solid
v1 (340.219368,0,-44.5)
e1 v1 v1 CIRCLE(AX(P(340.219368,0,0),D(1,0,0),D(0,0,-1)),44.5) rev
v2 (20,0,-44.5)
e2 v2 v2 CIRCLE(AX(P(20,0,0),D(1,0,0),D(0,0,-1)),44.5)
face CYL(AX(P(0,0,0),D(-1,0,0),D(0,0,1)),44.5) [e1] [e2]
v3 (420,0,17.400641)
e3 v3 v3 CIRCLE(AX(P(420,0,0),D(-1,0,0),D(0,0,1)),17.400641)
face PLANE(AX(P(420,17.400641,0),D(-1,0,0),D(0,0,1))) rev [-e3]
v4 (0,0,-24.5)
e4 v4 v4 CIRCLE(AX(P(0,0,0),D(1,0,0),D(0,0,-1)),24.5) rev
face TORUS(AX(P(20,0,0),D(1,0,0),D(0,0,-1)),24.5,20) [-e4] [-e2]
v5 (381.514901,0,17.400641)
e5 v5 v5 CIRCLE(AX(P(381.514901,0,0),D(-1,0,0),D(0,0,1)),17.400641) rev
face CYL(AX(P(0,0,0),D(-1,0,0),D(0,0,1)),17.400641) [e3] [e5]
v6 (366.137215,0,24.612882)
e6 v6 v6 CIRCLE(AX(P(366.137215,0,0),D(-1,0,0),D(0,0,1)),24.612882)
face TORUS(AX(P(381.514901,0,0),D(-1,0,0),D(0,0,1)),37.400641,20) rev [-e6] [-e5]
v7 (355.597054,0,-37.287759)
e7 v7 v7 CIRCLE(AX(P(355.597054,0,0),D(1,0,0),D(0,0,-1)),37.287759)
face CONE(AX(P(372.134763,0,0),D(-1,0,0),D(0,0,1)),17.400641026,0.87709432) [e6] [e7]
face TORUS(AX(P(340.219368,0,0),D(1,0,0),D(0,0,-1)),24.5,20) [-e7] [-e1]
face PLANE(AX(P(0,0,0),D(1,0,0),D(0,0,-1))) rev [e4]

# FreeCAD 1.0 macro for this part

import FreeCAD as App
import Part
import Sketcher
from FreeCAD import Vector
Q = App.Units.Quantity


def edges_at(feature, points):
    """Names of the edges that pass closest to the given points."""
    edges = feature.Shape.Edges
    near = lambda p: min(range(len(edges)), key=lambda i: edges[i].distToShape(Part.Vertex(*p))[0])
    return sorted({f"Edge{near(p) + 1}" for p in points})


def add_polygon(sketch, points):
    """Adds a closed chain of lines whose ends are joined by coincident constraints."""
    first, n = sketch.GeometryCount, len(points)
    for a, b in zip(points, points[1:] + points[:1]):
        sketch.addGeometry(Part.LineSegment(App.Vector(*a, 0), App.Vector(*b, 0)), False)
    for i in range(n):
        sketch.addConstraint(Sketcher.Constraint("Coincident", first + i, 2, first + (i + 1) % n, 1))

doc = App.newDocument("Part")
body = doc.addObject("PartDesign::Body", "Body")

# Sketch on XY plane
sketch1 = body.newObject("Sketcher::SketchObject", "Sketch")
sketch1.AttachmentSupport = (doc.getObject("XY_Plane"), [""])
sketch1.MapMode = "FlatFace"
add_polygon(sketch1, [(0, 44), (0, 0), (420, 0), (420, 17), (372, 17), (350, 44)])  # lines 0-5
sketch1.addConstraint(Sketcher.Constraint("Vertical", 0))
sketch1.addConstraint(Sketcher.Constraint("Horizontal", 1))
sketch1.addConstraint(Sketcher.Constraint("Vertical", 2))
sketch1.addConstraint(Sketcher.Constraint("Horizontal", 3))
sketch1.addConstraint(Sketcher.Constraint("Horizontal", 5))
sketch1.addConstraint(Sketcher.Constraint("Coincident", 0, 2, -1, 1))
sketch1.addConstraint(Sketcher.Constraint("DistanceX", 1, 1, 1, 2, Q("420 mm")))
sketch1.addConstraint(Sketcher.Constraint("DistanceY", 0, 2, 0, 1, Q("44.5 mm")))
sketch1.addConstraint(Sketcher.Constraint("DistanceY", 2, 1, 2, 2, Q("17.400641 mm")))
sketch1.addConstraint(Sketcher.Constraint("DistanceX", 3, 2, 3, 1, Q("47.865237 mm")))
sketch1.addConstraint(Sketcher.Constraint("DistanceX", 5, 2, 5, 1, Q("349.599506 mm")))
revolution = body.newObject("PartDesign::Revolution", "Revolution")
revolution.Profile = sketch1
revolution.ReferenceAxis = (sketch1, ["H_Axis"])
revolution.Angle = 360
doc.recompute()

fillet = body.newObject("PartDesign::Fillet", "Fillet")
fillet.Base = (revolution, edges_at(revolution, [(372.135, 0, -17.401), (349.6, 0, -44.5), (0, 0, -44.5)]))
fillet.Radius = 20

doc.recompute()
